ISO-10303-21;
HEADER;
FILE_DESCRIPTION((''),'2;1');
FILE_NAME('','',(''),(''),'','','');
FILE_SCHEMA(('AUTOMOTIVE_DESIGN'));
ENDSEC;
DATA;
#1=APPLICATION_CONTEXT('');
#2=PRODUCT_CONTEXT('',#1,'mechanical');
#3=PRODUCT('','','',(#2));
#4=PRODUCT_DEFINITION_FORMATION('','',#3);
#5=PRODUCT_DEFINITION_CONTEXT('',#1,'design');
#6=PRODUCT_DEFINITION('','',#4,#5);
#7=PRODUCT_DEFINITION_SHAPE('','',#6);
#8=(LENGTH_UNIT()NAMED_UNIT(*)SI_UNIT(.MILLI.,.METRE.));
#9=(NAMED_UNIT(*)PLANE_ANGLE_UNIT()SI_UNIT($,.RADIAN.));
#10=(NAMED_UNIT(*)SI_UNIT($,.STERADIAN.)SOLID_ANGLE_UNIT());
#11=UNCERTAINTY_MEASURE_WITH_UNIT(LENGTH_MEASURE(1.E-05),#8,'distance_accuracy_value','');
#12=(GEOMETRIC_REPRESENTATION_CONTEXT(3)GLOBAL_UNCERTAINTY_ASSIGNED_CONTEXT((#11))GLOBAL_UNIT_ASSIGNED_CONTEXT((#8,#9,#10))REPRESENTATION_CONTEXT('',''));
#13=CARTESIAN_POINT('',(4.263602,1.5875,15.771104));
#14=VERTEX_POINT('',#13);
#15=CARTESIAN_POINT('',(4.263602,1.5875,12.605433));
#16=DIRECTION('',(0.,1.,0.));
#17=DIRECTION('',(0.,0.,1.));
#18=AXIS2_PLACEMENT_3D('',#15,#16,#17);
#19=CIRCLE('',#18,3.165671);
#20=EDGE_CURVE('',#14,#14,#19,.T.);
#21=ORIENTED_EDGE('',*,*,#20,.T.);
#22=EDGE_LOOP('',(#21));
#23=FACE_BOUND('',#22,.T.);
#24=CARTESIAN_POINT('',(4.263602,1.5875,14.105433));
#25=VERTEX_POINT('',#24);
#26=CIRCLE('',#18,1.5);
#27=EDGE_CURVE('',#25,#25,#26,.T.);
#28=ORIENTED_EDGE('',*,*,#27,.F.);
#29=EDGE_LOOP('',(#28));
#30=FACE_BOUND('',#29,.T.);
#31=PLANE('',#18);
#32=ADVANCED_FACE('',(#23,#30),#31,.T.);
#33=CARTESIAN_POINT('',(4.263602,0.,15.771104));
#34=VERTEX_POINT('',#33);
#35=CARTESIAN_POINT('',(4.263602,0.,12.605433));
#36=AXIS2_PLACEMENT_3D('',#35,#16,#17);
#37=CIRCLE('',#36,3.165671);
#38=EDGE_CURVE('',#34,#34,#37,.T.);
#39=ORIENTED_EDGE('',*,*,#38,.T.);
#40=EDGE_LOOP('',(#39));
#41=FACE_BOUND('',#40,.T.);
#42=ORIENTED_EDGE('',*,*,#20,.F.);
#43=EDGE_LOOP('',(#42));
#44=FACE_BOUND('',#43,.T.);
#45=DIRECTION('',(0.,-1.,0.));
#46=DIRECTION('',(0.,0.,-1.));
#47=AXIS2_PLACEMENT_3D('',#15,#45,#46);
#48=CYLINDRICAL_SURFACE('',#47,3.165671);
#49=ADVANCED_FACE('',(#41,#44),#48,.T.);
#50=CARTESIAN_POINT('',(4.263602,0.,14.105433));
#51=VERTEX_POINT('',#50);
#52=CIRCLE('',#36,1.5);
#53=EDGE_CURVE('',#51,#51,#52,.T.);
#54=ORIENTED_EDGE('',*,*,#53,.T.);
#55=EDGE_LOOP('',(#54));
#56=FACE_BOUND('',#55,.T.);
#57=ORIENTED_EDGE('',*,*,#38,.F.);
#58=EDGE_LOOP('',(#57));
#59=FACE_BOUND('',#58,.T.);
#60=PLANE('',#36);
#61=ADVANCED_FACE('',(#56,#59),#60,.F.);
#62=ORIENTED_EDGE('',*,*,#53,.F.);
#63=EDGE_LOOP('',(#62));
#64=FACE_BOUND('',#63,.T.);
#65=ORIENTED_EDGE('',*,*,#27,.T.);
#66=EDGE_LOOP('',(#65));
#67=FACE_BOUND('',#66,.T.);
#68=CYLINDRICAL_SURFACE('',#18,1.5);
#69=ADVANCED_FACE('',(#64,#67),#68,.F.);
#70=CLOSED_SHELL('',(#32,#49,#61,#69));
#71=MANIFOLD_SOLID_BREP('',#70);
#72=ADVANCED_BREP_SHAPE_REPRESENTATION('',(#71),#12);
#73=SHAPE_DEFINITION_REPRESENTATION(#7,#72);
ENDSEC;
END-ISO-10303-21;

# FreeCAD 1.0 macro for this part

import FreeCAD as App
import Part
import Sketcher
Q = App.Units.Quantity

doc = App.newDocument("Part")
body = doc.addObject("PartDesign::Body", "Body")

# Sketch on XZ plane
sketch1 = body.newObject("Sketcher::SketchObject", "Sketch")
sketch1.AttachmentSupport = (doc.getObject("XZ_Plane"), [""])
sketch1.MapMode = "FlatFace"
sketch1.addGeometry(Part.Circle(App.Vector(4.3, 12.6, 0), App.Vector(0, 0, 1), 3.2), False)
sketch1.addConstraint(Sketcher.Constraint("Diameter", 0, 6.331342))
sketch1.addConstraint(Sketcher.Constraint("DistanceX", -1, 1, 0, 3, 4.263602))
sketch1.addConstraint(Sketcher.Constraint("DistanceY", -1, 1, 0, 3, 12.605433))
pad1 = body.newObject("PartDesign::Pad", "Pad")
pad1.Profile = sketch1
pad1.Length = Q("0.0625 in")
pad1.Reversed = True

# Sketch on XZ plane
sketch2 = body.newObject("Sketcher::SketchObject", "Sketch001")
sketch2.AttachmentSupport = (doc.getObject("XZ_Plane"), [""])
sketch2.MapMode = "FlatFace"
sketch2.AttachmentOffset = App.Placement(App.Vector(0, 0, -0.0625 * 25.4), App.Rotation())
sketch2.addGeometry(Part.Circle(App.Vector(4.3, 12.6, 0), App.Vector(0, 0, 1), 1.5), False)
sketch2.addConstraint(Sketcher.Constraint("Diameter", 0, 3.0))
sketch2.addConstraint(Sketcher.Constraint("DistanceX", -1, 1, 0, 3, 4.263602))
sketch2.addConstraint(Sketcher.Constraint("DistanceY", -1, 1, 0, 3, 12.605433))
doc.recompute()
hole = body.newObject("PartDesign::Hole", "Hole")
hole.Profile = sketch2
hole.ThreadType = "None"
hole.Diameter = 3
hole.DepthType = "Dimension"
hole.Depth = Q("1 in")
hole.DrillPoint = "Angled"
hole.DrillPointAngle = 118
hole.Reversed = True

doc.recompute()
